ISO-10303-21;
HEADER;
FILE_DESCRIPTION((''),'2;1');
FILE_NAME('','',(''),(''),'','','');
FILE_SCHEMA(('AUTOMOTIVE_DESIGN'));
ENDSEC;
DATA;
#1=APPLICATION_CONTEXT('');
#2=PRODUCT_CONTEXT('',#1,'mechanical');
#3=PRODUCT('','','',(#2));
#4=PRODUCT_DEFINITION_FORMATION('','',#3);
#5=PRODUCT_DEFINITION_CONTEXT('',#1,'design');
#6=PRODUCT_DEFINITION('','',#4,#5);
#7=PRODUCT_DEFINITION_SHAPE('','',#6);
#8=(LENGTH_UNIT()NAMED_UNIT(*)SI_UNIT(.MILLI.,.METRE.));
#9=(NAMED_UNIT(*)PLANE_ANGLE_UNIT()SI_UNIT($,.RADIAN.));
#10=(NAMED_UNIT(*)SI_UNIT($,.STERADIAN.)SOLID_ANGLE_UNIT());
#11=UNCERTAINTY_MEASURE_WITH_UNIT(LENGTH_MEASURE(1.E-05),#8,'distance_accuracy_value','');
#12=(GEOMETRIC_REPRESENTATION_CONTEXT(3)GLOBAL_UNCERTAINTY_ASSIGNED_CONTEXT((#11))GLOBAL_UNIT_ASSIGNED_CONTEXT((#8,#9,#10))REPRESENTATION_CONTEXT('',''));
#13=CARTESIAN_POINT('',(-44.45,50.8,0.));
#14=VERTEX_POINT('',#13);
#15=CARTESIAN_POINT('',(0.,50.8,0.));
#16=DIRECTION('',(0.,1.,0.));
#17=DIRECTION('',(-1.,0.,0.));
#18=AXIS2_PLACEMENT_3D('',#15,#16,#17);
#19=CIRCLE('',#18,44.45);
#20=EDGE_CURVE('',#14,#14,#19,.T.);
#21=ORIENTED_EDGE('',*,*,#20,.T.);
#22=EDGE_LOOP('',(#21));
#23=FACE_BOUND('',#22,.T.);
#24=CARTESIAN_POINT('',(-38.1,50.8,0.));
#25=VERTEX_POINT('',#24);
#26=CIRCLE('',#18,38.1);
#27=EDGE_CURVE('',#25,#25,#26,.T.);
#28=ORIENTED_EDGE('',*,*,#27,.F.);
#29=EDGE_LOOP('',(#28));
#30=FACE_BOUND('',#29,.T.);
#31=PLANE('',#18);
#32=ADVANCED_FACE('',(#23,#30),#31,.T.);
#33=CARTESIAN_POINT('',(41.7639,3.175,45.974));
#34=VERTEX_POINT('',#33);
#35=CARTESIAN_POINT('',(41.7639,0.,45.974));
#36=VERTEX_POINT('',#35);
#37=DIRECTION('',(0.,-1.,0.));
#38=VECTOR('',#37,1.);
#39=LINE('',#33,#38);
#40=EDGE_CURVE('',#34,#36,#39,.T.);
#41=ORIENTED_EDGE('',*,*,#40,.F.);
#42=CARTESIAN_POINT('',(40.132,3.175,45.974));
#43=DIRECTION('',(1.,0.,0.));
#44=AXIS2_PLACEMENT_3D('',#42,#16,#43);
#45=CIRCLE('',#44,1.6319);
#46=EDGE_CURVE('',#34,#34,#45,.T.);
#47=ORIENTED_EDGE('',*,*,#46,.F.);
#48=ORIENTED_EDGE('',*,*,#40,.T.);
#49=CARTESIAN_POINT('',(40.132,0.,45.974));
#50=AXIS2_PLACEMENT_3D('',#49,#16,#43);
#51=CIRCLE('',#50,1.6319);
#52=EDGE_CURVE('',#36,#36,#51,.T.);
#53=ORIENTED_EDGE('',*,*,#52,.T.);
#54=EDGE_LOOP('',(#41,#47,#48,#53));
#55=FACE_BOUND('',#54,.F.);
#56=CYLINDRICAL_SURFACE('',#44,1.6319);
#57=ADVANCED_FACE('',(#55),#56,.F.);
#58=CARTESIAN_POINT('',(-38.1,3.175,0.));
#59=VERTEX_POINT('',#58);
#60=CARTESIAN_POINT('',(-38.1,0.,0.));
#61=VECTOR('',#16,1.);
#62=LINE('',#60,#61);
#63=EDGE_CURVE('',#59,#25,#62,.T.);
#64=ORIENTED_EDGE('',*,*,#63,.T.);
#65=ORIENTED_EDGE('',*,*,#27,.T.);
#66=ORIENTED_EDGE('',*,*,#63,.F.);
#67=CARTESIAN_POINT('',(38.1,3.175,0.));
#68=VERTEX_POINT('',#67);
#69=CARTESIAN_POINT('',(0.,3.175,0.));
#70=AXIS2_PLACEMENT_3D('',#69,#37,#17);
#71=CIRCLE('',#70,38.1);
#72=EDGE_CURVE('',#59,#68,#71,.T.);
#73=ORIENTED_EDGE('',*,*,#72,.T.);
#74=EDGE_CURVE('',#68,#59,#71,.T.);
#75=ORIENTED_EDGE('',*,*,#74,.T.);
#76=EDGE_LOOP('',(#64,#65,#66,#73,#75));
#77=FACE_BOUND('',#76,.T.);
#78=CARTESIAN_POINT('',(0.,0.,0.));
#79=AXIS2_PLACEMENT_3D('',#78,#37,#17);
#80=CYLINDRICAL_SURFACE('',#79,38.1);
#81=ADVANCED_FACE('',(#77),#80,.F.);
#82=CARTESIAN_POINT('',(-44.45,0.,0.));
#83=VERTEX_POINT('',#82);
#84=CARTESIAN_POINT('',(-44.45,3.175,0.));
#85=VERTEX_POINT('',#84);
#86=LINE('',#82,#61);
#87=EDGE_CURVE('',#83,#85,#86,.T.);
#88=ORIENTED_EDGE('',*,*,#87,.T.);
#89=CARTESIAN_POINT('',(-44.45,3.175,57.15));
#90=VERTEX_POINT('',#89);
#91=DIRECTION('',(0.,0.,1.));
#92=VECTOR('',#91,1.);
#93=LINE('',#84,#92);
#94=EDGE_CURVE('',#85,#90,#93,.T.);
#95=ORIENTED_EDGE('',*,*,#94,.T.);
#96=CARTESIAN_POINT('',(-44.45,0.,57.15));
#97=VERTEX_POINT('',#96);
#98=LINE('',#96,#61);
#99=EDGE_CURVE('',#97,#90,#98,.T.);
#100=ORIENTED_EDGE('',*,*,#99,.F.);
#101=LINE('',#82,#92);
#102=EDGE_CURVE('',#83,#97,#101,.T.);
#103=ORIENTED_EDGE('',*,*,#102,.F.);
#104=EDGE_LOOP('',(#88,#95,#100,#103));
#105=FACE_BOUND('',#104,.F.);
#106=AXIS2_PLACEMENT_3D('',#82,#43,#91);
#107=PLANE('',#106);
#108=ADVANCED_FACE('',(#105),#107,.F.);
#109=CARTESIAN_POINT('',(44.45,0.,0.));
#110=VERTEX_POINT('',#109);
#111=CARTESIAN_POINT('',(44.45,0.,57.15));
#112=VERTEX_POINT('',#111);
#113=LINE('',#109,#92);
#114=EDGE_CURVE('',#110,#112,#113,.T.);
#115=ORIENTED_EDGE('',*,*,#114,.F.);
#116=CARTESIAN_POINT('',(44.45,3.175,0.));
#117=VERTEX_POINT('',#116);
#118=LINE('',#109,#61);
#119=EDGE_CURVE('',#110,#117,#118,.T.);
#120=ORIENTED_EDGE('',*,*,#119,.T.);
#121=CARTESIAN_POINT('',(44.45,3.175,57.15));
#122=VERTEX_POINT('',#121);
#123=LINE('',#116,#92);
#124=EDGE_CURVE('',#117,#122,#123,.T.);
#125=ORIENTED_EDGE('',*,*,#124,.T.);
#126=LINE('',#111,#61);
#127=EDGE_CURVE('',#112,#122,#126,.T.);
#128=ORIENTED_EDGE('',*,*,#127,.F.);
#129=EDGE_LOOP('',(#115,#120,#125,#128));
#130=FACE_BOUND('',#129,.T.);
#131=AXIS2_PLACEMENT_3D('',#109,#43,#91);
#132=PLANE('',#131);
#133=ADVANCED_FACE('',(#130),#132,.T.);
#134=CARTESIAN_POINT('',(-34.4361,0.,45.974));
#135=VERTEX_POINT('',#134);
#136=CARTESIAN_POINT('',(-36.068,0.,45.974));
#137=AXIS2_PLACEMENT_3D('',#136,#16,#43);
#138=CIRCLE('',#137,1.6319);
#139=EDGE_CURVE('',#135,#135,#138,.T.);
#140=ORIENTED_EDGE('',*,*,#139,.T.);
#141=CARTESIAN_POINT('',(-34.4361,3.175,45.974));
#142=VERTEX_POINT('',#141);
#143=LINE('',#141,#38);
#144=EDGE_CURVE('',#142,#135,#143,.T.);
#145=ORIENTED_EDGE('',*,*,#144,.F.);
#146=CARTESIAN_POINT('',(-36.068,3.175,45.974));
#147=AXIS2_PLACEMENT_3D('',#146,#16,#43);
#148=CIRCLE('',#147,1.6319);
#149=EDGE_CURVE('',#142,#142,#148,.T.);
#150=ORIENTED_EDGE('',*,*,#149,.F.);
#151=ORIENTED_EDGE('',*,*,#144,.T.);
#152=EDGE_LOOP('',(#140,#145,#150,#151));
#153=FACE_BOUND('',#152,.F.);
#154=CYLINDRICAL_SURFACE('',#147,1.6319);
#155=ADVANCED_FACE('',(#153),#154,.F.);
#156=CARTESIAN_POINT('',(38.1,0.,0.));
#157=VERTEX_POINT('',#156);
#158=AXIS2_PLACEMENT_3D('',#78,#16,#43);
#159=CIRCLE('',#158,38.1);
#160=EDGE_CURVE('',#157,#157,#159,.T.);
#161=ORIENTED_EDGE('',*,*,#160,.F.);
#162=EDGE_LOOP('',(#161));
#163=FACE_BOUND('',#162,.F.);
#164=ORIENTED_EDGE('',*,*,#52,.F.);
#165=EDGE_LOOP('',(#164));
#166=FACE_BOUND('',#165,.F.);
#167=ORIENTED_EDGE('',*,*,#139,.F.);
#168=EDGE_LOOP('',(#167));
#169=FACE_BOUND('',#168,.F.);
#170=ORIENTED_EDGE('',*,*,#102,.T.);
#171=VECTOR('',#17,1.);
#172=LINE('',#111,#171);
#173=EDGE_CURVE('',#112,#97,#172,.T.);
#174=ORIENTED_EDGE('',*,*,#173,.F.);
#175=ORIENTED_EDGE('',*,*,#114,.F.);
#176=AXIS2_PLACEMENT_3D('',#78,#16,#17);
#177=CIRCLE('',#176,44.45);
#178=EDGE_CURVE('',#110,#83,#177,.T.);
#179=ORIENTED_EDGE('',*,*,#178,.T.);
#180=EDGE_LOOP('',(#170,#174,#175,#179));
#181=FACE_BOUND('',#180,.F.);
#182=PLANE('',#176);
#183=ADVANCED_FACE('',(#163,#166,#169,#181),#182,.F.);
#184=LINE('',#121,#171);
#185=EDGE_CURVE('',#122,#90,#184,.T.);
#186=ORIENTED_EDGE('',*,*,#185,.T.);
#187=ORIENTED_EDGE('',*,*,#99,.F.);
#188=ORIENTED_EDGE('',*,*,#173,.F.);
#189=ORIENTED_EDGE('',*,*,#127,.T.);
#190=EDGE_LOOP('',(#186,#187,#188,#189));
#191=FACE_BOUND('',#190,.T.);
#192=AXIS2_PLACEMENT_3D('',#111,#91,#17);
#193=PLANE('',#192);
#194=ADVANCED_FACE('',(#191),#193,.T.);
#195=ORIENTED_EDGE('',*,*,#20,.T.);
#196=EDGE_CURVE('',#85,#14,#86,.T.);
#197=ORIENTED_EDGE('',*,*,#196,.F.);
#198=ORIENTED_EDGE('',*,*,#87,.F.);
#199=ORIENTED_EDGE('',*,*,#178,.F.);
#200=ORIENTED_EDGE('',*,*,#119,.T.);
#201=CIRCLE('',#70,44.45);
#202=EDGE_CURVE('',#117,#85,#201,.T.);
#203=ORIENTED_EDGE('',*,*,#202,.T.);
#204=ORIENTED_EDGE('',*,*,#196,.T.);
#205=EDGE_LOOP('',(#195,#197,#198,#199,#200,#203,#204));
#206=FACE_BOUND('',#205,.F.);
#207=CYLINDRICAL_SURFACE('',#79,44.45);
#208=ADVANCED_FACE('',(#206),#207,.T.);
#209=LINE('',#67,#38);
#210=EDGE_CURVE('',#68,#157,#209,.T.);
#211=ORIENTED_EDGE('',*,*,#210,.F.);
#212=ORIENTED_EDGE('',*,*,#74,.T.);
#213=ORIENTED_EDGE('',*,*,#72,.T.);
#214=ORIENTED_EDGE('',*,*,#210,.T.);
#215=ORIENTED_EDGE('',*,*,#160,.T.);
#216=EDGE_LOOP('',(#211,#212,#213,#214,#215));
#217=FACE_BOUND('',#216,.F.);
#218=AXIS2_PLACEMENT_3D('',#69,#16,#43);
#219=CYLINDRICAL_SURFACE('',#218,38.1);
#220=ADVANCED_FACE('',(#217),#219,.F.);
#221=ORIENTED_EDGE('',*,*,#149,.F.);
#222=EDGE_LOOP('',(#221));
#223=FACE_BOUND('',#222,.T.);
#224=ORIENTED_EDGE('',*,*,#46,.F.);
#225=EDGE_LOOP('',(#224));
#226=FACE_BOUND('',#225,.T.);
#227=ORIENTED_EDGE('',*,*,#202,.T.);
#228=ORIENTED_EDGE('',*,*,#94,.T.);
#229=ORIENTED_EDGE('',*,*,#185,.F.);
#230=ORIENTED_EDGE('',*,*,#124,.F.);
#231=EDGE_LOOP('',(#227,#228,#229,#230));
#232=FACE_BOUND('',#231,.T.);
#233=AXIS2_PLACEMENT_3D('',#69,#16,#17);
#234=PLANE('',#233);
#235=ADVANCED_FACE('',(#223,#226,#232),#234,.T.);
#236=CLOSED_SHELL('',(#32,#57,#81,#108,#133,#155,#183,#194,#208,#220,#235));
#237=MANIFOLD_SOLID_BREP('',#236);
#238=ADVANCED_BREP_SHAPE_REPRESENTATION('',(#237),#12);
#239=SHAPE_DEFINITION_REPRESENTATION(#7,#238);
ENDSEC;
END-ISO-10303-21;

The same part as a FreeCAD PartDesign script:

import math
import FreeCAD as App
import Part
import Sketcher

V = App.Vector
Q = App.Units.Quantity

doc = App.newDocument("Part")
body = doc.addObject("PartDesign::Body", "Body")

# Sketch on XZ plane
sketch1 = body.newObject("Sketcher::SketchObject", "Sketch")
sketch1.AttachmentSupport = (doc.getObject("XZ_Plane"), [""])
sketch1.MapMode = "FlatFace"
sketch1.addGeometry([
    Part.Circle(V(0, 0, 0), V(0, 0, 1), 44),
    Part.Circle(V(0, 0, 0), V(0, 0, 1), 38),
], False)
sketch1.addConstraint([
    Sketcher.Constraint("Coincident", 0, 3, -1, 1),
    Sketcher.Constraint("Coincident", 1, 3, -1, 1),
    Sketcher.Constraint("Diameter", 1, Q("3 in")),
    Sketcher.Constraint("Diameter", 0, Q("3.5 in")),
])
pad1 = body.newObject("PartDesign::Pad", "Pad")
pad1.Profile = sketch1
pad1.Length = Q("2 in")
pad1.Reversed = True

# Sketch on XZ plane
sketch2 = body.newObject("Sketcher::SketchObject", "Sketch001")
sketch2.AttachmentSupport = (doc.getObject("XZ_Plane"), [""])
sketch2.MapMode = "FlatFace"
sketch2.addGeometry([
    Part.ArcOfCircle(Part.Circle(V(0, 0, 0), V(0, 0, 1), 44), math.radians(180), math.radians(360)),
    Part.LineSegment(V(-44, 0, 0), V(-44, 57, 0)),
    Part.LineSegment(V(-44, 57, 0), V(44, 57, 0)),
    Part.LineSegment(V(44, 57, 0), V(44, 0, 0)),
], False)
sketch2.addConstraint([
    Sketcher.Constraint("Tangent", 0, 1, 1, 1),
    Sketcher.Constraint("Coincident", 1, 2, 2, 1),
    Sketcher.Constraint("Coincident", 2, 2, 3, 1),
    Sketcher.Constraint("Tangent", 3, 2, 0, 2),
    Sketcher.Constraint("Vertical", 1),
    Sketcher.Constraint("Horizontal", 2),
    Sketcher.Constraint("Vertical", 3),
    Sketcher.Constraint("Coincident", 0, 3, -1, 1),
    Sketcher.Constraint("DistanceY", 1, 1, 1, 2, Q("2.25 in")),
    Sketcher.Constraint("Radius", 0, Q("1.75 in")),
])
pad2 = body.newObject("PartDesign::Pad", "Pad001")
pad2.Profile = sketch2
pad2.Length = Q("0.125 in")
pad2.Reversed = True

# Sketch on XZ plane
sketch3 = body.newObject("Sketcher::SketchObject", "Sketch002")
sketch3.AttachmentSupport = (doc.getObject("XZ_Plane"), [""])
sketch3.MapMode = "FlatFace"
sketch3.AttachmentOffset = App.Placement(V(0, 0, -0.125 * 25.4), App.Rotation())
sketch3.addGeometry(Part.Circle(V(0, 0, 0), V(0, 0, 1), 38), False)
sketch3.addConstraint([
    Sketcher.Constraint("Coincident", 0, 3, -1, 1),
    Sketcher.Constraint("Diameter", 0, Q("3 in")),
])
pocket1 = body.newObject("PartDesign::Pocket", "Pocket")
pocket1.Profile = sketch3
pocket1.Length = Q("0.125 in")
pocket1.Reversed = True

# Sketch on XZ plane
sketch4 = body.newObject("Sketcher::SketchObject", "Sketch003")
sketch4.AttachmentSupport = (doc.getObject("XZ_Plane"), [""])
sketch4.MapMode = "FlatFace"
sketch4.AttachmentOffset = App.Placement(V(0, 0, -0.125 * 25.4), App.Rotation())
sketch4.addGeometry([
    Part.Circle(V(-36.1, 46, 0), V(0, 0, 1), 1.6),
    Part.Circle(V(40.1, 46, 0), V(0, 0, 1), 1.6),
], False)
sketch4.addConstraint([
    Sketcher.Constraint("Equal", 0, 1),
    Sketcher.Constraint("Horizontal", 0, 3, 1, 3),
    Sketcher.Constraint("DistanceX", 0, 3, 1, 3, Q("3 in")),
    Sketcher.Constraint("Diameter", 0, Q("0.1285 in")),
    Sketcher.Constraint("DistanceX", 0, 3, -1, 1, Q("1.42 in")),
    Sketcher.Constraint("DistanceY", -1, 1, 0, 3, Q("1.81 in")),
])
pocket2 = body.newObject("PartDesign::Pocket", "Pocket001")
pocket2.Profile = sketch4
pocket2.Length = Q("0.125 in")
pocket2.Reversed = True

doc.recompute()
